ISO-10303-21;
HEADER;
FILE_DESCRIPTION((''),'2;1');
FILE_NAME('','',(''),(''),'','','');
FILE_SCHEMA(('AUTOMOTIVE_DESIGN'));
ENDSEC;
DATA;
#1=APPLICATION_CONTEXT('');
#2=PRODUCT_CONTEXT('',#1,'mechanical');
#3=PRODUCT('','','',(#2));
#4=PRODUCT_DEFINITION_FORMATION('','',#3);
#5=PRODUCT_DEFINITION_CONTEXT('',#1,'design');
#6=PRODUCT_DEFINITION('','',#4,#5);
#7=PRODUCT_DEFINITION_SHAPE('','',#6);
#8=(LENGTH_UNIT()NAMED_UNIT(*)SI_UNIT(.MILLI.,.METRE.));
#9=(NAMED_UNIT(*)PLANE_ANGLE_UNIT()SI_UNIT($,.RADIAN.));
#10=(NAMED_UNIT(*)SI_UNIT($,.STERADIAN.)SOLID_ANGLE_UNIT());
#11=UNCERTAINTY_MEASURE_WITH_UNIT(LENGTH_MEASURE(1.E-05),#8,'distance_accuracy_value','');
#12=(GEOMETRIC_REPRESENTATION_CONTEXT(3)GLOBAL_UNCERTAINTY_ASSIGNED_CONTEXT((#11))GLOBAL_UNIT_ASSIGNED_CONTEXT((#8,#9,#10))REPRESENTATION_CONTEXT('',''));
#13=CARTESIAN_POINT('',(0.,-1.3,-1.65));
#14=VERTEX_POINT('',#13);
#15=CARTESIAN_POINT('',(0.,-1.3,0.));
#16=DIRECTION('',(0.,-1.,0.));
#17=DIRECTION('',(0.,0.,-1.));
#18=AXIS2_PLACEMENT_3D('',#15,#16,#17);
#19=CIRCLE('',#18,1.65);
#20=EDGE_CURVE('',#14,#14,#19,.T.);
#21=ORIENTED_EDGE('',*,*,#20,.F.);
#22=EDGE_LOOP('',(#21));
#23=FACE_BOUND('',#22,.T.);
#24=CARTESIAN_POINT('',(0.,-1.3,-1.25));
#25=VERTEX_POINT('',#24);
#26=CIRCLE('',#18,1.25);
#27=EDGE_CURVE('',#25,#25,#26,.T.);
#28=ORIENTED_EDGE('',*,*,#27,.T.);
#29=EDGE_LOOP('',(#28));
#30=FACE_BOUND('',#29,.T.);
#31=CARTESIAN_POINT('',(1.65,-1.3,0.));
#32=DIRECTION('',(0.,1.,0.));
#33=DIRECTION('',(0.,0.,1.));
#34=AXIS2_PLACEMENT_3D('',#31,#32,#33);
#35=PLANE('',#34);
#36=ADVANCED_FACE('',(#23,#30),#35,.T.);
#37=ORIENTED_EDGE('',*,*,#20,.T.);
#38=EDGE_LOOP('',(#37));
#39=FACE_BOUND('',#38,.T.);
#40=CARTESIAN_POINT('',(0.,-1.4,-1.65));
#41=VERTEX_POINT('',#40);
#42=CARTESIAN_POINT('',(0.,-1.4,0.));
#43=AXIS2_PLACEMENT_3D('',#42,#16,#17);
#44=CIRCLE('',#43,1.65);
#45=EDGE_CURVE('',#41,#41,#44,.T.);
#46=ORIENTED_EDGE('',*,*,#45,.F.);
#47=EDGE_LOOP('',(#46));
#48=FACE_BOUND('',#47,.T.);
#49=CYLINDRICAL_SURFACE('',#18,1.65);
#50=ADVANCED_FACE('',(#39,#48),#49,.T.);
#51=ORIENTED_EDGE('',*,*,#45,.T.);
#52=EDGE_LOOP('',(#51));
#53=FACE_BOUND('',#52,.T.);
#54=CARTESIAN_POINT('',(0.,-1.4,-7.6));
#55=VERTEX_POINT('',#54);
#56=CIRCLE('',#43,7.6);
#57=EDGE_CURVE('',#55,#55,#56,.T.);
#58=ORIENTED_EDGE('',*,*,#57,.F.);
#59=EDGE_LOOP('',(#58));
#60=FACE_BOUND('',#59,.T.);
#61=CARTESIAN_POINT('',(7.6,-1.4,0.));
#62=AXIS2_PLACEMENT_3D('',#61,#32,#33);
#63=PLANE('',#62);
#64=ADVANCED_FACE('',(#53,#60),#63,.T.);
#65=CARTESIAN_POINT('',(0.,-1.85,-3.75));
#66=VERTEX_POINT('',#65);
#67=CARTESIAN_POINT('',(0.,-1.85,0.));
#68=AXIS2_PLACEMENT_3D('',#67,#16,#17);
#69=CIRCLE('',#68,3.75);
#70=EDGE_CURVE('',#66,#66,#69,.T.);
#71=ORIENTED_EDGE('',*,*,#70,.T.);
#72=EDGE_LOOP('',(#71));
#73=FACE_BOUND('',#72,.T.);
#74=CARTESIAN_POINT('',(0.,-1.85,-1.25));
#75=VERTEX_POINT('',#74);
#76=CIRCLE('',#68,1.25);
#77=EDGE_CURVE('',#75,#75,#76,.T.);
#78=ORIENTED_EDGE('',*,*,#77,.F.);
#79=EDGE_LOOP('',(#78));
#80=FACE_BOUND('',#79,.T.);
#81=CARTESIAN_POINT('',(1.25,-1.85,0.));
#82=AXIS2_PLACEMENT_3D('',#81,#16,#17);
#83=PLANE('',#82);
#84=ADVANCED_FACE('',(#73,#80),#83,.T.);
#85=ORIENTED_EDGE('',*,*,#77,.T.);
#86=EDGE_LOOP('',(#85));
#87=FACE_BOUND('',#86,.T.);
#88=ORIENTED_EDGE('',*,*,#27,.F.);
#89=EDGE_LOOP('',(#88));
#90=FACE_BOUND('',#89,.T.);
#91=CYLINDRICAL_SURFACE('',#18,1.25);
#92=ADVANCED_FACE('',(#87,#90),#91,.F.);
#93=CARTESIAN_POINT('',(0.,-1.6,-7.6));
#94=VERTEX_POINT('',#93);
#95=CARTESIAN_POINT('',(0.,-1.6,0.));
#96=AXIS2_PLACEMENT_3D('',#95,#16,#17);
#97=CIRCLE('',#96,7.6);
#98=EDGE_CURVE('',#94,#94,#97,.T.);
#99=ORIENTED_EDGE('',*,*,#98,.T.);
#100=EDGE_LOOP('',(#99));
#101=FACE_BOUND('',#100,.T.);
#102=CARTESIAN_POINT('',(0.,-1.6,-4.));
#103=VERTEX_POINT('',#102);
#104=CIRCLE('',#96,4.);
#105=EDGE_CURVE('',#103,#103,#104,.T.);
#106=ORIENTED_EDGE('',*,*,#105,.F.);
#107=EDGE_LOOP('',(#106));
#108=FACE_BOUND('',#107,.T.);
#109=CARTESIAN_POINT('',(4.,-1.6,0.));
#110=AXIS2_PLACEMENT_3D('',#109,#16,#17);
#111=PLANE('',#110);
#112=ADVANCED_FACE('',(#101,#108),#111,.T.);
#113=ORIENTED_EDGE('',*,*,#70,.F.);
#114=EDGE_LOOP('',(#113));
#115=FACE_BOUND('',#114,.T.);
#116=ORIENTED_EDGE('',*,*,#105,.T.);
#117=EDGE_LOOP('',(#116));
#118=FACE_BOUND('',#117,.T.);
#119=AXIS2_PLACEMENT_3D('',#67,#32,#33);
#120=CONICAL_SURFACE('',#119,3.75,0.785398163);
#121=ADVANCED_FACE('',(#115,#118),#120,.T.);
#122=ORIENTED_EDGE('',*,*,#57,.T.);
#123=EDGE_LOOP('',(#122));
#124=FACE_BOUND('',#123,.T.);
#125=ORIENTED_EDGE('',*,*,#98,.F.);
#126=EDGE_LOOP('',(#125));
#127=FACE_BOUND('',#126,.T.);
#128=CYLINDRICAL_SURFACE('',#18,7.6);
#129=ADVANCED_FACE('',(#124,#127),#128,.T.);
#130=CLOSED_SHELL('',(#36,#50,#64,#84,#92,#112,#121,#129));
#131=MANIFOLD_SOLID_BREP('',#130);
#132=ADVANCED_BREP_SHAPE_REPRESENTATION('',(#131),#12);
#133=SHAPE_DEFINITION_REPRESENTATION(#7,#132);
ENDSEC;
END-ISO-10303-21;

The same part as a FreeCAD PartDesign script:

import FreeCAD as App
import Part
import Sketcher
from FreeCAD import Vector
Q = App.Units.Quantity

doc = App.newDocument("Part")
body = doc.addObject("PartDesign::Body", "Body")

# Sketch on XY plane
sketch1 = body.newObject("Sketcher::SketchObject", "Sketch")
sketch1.AttachmentSupport = (doc.getObject("XY_Plane"), [""])
sketch1.MapMode = "FlatFace"
sketch1.addGeometry([
    Part.LineSegment(Vector(4, -1.6, 0), Vector(7.6, -1.6, 0)),  # 0
    Part.LineSegment(Vector(7.6, -1.6, 0), Vector(7.6, -1.4, 0)),  # 1
    Part.LineSegment(Vector(7.6, -1.4, 0), Vector(1.65, -1.4, 0)),  # 2
    Part.LineSegment(Vector(1.65, -1.4, 0), Vector(1.65, -1.3, 0)),  # 3
    Part.LineSegment(Vector(1.65, -1.3, 0), Vector(1.25, -1.3, 0)),  # 4
    Part.LineSegment(Vector(1.25, -1.3, 0), Vector(1.25, -1.85, 0)),  # 5
    Part.LineSegment(Vector(1.25, -1.85, 0), Vector(3.75, -1.85, 0)),  # 6
    Part.LineSegment(Vector(3.75, -1.85, 0), Vector(4, -1.6, 0)),  # 7
], False)
sketch1.addConstraint([
    Sketcher.Constraint("Coincident", 0, 2, 1, 1),
    Sketcher.Constraint("Coincident", 1, 2, 2, 1),
    Sketcher.Constraint("Coincident", 2, 2, 3, 1),
    Sketcher.Constraint("Coincident", 3, 2, 4, 1),
    Sketcher.Constraint("Coincident", 4, 2, 5, 1),
    Sketcher.Constraint("Coincident", 5, 2, 6, 1),
    Sketcher.Constraint("Coincident", 6, 2, 7, 1),
    Sketcher.Constraint("Coincident", 7, 2, 0, 1),
    Sketcher.Constraint("Horizontal", 0),
    Sketcher.Constraint("Vertical", 1),
    Sketcher.Constraint("Horizontal", 2),
    Sketcher.Constraint("Vertical", 3),
    Sketcher.Constraint("Horizontal", 4),
    Sketcher.Constraint("Vertical", 5),
    Sketcher.Constraint("Horizontal", 6),
    Sketcher.Constraint("Angle", 7, Q("45 deg")),
    Sketcher.Constraint("DistanceX", 0, 1, 0, 2, Q("3.6 mm")),
    Sketcher.Constraint("DistanceX", 4, 2, 4, 1, Q("0.4 mm")),
    Sketcher.Constraint("DistanceX", 6, 1, 6, 2, Q("2.5 mm")),
    Sketcher.Constraint("DistanceY", 1, 1, 1, 2, Q("0.2 mm")),
    Sketcher.Constraint("DistanceY", 3, 1, 3, 2, Q("0.1 mm")),
    Sketcher.Constraint("DistanceX", -1, 1, 7, 2, Q("4 mm")),
    Sketcher.Constraint("DistanceX", 2, 2, 2, 1, Q("5.95 mm")),
    Sketcher.Constraint("DistanceY", 0, 2, -1, 1, Q("1.6 mm")),
])
revolution = body.newObject("PartDesign::Revolution", "Revolution")
revolution.Profile = sketch1
revolution.ReferenceAxis = (sketch1, ["V_Axis"])
revolution.Angle = 360

doc.recompute()
